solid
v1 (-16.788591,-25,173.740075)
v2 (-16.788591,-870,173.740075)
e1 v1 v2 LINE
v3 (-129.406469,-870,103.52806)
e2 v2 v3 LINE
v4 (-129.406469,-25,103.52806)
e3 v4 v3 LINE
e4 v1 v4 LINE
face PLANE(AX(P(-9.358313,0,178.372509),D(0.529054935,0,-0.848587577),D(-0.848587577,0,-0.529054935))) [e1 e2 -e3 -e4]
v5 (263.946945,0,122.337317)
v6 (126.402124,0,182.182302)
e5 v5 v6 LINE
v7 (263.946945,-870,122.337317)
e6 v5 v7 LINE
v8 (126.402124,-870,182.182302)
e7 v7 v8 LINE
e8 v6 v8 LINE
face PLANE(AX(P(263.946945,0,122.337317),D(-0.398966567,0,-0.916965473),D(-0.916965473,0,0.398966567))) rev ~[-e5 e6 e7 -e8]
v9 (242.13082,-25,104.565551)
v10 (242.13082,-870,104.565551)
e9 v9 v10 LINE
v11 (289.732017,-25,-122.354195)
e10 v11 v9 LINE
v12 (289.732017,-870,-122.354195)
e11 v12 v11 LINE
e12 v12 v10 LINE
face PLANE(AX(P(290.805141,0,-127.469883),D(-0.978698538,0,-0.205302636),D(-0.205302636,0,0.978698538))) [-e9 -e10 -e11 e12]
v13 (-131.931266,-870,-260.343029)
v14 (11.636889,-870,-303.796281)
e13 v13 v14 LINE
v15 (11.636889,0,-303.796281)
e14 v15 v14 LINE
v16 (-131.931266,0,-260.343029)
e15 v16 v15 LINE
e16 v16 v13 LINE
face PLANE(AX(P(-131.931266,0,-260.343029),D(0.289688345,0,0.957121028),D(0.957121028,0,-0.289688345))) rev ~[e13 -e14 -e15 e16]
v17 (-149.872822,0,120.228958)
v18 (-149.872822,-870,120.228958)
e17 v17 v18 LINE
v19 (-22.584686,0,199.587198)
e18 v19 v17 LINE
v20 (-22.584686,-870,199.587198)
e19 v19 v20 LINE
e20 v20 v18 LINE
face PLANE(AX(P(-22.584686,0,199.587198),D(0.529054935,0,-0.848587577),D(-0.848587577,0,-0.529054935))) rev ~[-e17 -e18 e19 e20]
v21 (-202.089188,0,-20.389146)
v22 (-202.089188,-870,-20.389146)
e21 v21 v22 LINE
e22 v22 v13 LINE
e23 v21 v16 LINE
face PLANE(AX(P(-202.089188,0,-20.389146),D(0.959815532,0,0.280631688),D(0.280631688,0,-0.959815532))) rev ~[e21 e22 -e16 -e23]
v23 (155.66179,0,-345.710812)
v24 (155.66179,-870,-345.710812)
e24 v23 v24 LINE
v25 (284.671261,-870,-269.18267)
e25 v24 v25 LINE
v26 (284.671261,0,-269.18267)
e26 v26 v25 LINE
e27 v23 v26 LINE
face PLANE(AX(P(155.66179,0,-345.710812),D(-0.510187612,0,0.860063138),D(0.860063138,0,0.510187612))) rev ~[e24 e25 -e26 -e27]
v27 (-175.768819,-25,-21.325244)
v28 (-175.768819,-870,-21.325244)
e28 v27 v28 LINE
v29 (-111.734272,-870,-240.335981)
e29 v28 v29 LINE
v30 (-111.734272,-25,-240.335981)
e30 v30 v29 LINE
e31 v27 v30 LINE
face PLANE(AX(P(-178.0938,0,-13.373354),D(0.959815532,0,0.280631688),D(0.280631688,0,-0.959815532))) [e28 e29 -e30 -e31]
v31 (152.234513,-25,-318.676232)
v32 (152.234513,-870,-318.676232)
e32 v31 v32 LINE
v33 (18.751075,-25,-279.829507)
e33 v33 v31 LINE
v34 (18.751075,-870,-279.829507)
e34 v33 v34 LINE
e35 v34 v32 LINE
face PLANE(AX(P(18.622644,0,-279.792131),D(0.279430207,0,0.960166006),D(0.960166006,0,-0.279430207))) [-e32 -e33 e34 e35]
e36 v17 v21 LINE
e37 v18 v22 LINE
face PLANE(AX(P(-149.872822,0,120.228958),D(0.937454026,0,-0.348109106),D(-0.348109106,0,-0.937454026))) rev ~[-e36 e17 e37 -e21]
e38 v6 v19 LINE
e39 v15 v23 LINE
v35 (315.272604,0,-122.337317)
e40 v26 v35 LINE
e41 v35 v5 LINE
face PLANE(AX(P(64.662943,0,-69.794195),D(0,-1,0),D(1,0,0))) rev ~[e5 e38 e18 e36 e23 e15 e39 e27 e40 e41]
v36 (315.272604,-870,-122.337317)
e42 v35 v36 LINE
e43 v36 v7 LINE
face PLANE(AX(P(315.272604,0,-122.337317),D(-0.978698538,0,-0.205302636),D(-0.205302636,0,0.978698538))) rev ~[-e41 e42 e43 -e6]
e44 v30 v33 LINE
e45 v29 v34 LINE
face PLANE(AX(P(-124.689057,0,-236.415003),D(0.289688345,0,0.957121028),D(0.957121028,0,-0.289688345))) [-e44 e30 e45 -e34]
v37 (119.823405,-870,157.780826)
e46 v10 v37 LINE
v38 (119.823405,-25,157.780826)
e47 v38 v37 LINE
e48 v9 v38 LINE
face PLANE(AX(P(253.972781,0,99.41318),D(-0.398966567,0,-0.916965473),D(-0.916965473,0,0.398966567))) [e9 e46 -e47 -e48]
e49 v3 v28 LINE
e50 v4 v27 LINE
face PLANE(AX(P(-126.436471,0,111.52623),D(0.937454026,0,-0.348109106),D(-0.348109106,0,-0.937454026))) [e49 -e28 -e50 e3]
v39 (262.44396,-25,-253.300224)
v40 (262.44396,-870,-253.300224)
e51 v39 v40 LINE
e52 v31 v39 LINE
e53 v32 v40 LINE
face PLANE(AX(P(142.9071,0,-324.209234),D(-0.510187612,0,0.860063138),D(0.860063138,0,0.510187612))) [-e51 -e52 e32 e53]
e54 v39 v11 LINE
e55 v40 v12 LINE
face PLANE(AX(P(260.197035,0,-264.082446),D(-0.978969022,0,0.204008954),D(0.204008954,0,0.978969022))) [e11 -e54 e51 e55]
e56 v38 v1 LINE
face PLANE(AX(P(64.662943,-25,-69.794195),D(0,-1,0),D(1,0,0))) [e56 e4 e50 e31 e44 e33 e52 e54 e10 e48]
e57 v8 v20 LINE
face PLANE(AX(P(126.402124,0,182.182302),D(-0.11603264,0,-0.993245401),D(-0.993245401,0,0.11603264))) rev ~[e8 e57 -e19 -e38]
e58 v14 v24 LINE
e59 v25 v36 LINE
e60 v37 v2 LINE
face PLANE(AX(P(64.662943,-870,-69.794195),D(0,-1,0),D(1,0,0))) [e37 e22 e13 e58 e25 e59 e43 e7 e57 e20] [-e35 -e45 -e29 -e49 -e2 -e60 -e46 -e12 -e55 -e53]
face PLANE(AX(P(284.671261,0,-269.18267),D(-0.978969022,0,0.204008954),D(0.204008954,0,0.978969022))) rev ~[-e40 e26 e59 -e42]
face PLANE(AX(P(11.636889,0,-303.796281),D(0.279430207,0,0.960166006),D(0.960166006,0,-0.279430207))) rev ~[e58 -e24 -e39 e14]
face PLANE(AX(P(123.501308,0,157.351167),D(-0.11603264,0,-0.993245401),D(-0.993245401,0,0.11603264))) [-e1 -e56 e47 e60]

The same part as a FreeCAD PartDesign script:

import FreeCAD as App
import Part
import Sketcher

V = App.Vector
Q = App.Units.Quantity


def faces_at(feature, points):
    """Names of the faces that lie closest to the given points."""
    faces = feature.Shape.Faces
    near = lambda p: min(range(len(faces)), key=lambda i: faces[i].distToShape(Part.Vertex(*p))[0])
    return sorted({f"Face{near(p) + 1}" for p in points})


def add_polygon(sketch, points):
    """Adds a closed chain of lines whose ends are joined by coincident constraints."""
    first, n = sketch.GeometryCount, len(points)
    for a, b in zip(points, points[1:] + points[:1]):
        sketch.addGeometry(Part.LineSegment(App.Vector(*a, 0), App.Vector(*b, 0)), False)
    for i in range(n):
        sketch.addConstraint(Sketcher.Constraint("Coincident", first + i, 2, first + (i + 1) % n, 1))

doc = App.newDocument("Part")
body = doc.addObject("PartDesign::Body", "Body")

# Sketch on XZ plane
sketch1 = body.newObject("Sketcher::SketchObject", "Sketch")
sketch1.AttachmentSupport = (doc.getObject("XZ_Plane"), [""])
sketch1.MapMode = "FlatFace"
add_polygon(sketch1, [(315, -122), (264, 122), (126, 182), (-23, 200), (-150, 120), (-202, -20), (-132, -260), (12, -304), (156, -346), (285, -269)])  # lines 0-9
sketch1.addConstraint([
    Sketcher.Constraint("Equal", 1, 2),
    Sketcher.Constraint("Equal", 2, 3),
    Sketcher.Constraint("Equal", 3, 4),
    Sketcher.Constraint("Equal", 0, 5),
    Sketcher.Constraint("Equal", 4, 6),
    Sketcher.Constraint("Equal", 6, 7),
    Sketcher.Constraint("Equal", 7, 8),
    Sketcher.Constraint("Equal", 8, 9),
    Sketcher.Constraint("Distance", 0, Q("250 mm")),
    Sketcher.Constraint("Distance", 1, Q("150 mm")),
    Sketcher.Constraint("DistanceY", -1, 1, 1, 2, Q("182.182302 mm")),
    Sketcher.Constraint("DistanceY", -1, 1, 2, 2, Q("199.587198 mm")),
    Sketcher.Constraint("DistanceX", 4, 2, 2, 2, Q("179.504502 mm")),
    Sketcher.Constraint("DistanceY", 6, 2, 0, 2, Q("426.133598 mm")),
    Sketcher.Constraint("DistanceX", 6, 2, 7, 2, Q("144.024901 mm")),
    Sketcher.Constraint("DistanceY", -1, 1, 3, 2, Q("120.228958 mm")),
    Sketcher.Constraint("DistanceX", 4, 2, -1, 1, Q("202.089188 mm")),
    Sketcher.Constraint("DistanceY", 5, 2, -1, 1, Q("260.343029 mm")),
    Sketcher.Constraint("DistanceX", -1, 1, 6, 2, Q("11.636889 mm")),
    Sketcher.Constraint("DistanceX", -1, 1, 8, 2, Q("284.671261 mm")),
])
pad1 = body.newObject("PartDesign::Pad", "Pad")
pad1.Profile = sketch1
pad1.Length = 870
doc.recompute()

thickness = body.newObject("PartDesign::Thickness", "Thickness")
thickness.Base = (pad1, faces_at(pad1, [(56.592, -870, -73.062)]))
thickness.Value = 25
thickness.Reversed = True
thickness.Join = "Arc"

doc.recompute()
